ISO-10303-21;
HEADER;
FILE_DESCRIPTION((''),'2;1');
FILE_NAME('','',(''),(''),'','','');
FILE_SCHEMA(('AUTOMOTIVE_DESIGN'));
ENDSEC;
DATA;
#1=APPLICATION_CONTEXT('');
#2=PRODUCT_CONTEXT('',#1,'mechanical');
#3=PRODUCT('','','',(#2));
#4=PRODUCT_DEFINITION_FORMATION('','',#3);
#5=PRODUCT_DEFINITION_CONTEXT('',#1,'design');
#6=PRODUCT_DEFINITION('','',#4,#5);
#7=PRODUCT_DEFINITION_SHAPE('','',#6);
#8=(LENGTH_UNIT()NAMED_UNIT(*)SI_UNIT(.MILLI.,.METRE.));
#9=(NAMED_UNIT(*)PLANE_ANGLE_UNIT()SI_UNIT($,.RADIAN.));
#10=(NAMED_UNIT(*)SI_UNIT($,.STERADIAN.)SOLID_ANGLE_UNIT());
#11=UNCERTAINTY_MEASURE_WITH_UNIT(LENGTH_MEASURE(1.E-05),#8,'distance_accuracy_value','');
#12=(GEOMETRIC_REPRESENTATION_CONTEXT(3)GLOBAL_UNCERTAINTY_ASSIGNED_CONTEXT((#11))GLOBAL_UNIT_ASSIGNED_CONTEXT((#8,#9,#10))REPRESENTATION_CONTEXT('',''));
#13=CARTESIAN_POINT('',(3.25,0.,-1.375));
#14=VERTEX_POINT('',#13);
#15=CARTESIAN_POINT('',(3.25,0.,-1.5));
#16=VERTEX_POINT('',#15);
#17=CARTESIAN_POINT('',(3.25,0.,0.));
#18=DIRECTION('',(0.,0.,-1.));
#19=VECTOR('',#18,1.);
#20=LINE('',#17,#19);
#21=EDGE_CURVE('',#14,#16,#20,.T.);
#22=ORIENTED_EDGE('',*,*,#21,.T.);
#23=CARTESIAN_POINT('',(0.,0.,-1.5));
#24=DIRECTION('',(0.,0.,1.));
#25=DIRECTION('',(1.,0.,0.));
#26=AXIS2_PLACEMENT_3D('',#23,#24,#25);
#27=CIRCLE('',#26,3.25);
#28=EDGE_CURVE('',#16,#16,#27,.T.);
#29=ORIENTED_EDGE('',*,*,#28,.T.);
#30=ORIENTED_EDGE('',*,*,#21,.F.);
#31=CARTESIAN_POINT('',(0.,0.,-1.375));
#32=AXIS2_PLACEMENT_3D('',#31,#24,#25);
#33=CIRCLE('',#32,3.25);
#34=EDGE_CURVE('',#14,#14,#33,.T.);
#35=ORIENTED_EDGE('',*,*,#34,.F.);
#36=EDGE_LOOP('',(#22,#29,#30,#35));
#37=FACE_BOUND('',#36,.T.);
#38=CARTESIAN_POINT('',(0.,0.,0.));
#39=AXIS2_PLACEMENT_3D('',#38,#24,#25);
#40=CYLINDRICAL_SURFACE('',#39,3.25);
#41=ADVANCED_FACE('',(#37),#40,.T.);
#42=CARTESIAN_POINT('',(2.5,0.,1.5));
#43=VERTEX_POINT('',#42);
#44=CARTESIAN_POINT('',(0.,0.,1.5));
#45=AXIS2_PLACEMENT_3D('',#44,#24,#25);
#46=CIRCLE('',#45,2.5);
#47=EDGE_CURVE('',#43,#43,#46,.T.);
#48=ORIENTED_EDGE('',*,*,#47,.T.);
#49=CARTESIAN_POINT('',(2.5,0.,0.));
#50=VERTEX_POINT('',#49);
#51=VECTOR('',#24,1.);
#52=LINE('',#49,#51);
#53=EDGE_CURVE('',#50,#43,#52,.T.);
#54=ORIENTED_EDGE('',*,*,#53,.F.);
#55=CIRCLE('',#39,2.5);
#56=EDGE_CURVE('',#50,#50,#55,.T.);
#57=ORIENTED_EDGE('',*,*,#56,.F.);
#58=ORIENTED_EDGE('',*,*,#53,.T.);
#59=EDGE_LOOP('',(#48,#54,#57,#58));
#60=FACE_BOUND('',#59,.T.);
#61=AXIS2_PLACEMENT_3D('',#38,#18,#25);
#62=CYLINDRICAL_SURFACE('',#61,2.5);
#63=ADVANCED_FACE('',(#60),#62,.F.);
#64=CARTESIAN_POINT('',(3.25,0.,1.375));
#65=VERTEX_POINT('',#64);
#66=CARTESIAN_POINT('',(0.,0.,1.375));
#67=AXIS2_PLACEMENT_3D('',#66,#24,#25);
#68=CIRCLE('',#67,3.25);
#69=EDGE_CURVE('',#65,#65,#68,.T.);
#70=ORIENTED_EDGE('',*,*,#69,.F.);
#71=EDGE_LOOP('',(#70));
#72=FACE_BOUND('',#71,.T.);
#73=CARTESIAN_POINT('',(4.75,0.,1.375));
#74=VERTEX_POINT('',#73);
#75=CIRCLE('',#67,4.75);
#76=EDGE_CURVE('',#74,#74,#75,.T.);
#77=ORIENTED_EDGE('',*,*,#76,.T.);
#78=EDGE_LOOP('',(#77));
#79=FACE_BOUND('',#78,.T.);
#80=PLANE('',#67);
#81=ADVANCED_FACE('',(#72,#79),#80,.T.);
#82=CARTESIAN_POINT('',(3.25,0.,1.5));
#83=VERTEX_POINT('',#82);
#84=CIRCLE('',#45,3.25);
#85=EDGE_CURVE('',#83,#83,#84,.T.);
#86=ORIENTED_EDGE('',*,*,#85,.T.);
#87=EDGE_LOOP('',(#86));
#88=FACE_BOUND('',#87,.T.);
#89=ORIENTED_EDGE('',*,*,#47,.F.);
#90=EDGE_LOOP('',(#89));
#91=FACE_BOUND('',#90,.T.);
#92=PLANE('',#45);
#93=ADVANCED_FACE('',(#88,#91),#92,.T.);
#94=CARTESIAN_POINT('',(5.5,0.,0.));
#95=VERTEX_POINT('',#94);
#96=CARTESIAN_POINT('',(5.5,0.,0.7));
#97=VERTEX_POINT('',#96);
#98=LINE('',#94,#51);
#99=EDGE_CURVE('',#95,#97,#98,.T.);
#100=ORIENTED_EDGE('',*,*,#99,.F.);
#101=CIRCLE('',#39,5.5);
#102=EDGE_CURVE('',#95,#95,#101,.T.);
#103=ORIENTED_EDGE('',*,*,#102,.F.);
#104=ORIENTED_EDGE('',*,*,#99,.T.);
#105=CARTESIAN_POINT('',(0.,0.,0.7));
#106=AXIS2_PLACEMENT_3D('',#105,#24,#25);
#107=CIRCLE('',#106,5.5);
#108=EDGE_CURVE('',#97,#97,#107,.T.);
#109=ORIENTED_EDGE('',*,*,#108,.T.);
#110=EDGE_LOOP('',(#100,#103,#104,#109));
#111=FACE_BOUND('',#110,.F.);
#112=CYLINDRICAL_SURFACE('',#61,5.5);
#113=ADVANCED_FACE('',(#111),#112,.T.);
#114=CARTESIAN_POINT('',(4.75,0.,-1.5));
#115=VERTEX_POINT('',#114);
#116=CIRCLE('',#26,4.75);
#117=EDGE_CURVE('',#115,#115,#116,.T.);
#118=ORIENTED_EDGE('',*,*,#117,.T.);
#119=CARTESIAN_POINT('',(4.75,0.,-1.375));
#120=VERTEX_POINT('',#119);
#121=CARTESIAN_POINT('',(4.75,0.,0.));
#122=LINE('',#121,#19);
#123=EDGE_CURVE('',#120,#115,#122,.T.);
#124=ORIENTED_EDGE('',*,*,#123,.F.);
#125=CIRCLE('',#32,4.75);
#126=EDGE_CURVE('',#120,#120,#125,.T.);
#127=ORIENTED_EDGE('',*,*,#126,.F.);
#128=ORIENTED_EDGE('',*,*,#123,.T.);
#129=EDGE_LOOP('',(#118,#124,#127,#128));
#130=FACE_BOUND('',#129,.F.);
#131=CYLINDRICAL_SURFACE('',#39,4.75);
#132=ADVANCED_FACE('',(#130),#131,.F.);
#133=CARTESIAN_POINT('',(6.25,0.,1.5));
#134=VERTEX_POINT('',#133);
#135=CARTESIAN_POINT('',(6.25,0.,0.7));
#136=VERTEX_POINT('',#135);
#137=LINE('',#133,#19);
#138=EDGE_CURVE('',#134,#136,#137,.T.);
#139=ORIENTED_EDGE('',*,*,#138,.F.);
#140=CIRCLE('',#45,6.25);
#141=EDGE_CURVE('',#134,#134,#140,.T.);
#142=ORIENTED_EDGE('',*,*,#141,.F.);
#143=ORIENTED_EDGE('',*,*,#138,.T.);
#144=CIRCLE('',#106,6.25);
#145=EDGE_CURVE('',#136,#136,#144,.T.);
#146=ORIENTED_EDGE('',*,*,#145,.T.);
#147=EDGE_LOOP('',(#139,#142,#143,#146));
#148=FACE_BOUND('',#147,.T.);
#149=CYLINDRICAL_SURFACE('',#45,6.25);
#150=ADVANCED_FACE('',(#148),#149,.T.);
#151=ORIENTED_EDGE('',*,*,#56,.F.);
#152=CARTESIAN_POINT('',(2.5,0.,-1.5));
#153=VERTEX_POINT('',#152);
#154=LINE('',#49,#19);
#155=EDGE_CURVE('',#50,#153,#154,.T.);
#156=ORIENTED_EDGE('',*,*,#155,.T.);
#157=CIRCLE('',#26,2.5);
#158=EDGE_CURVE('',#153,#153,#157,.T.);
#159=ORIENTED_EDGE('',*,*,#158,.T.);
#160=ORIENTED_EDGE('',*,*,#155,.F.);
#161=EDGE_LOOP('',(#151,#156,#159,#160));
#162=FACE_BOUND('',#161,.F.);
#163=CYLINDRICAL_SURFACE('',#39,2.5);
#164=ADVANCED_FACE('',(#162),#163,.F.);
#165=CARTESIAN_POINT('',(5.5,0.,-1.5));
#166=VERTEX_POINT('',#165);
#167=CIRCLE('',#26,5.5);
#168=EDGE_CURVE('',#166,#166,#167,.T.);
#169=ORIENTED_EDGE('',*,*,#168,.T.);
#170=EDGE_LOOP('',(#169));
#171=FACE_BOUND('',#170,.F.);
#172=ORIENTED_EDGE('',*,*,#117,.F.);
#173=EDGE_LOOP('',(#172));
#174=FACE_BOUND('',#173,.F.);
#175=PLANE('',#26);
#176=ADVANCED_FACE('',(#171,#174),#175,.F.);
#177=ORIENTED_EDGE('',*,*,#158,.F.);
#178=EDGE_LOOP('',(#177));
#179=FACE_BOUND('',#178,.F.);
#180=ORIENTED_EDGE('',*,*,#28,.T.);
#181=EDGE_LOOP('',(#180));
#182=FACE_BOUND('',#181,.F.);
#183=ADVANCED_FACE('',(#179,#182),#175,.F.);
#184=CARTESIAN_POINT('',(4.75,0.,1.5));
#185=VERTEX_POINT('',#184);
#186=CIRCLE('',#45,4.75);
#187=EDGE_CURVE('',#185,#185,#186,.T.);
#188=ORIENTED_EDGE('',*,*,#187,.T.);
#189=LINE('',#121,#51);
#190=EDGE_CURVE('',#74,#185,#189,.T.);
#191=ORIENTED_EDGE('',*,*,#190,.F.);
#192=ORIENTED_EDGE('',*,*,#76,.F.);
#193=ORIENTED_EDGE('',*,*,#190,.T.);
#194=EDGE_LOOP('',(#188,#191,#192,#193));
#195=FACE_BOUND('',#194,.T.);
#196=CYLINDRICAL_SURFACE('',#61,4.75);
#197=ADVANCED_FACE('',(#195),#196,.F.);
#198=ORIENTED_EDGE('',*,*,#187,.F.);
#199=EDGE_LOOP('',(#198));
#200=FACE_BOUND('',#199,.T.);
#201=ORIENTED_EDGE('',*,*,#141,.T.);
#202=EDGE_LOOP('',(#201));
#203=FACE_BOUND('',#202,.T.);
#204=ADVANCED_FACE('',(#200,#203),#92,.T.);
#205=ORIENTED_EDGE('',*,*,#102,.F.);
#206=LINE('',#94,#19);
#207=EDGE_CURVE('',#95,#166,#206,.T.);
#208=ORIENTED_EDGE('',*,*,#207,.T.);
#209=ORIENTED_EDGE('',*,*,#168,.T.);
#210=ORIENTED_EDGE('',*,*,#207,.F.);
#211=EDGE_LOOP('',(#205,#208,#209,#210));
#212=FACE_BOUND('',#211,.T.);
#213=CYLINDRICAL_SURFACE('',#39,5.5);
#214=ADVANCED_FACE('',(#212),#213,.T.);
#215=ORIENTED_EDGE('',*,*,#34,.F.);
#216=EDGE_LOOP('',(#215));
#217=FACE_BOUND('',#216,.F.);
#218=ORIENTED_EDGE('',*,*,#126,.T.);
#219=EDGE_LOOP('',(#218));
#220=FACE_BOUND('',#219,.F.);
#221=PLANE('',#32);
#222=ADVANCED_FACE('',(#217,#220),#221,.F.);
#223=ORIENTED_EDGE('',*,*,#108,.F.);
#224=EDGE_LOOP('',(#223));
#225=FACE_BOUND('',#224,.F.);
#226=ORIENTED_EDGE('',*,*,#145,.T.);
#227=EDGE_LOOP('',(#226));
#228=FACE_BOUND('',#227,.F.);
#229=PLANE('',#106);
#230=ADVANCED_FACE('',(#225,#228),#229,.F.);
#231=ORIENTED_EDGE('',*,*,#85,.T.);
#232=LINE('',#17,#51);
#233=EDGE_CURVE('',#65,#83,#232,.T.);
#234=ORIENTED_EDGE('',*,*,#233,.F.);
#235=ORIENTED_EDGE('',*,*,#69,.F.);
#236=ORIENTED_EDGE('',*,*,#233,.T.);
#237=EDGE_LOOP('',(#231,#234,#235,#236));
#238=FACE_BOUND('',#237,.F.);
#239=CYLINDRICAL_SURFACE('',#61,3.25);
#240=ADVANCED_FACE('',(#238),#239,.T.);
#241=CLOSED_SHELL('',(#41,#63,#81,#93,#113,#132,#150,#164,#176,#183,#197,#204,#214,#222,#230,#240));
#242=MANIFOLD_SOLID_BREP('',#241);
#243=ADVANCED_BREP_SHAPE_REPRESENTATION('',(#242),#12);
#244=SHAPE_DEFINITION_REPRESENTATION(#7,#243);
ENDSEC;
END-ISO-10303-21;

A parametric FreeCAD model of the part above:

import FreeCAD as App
import Part
import Sketcher
Q = App.Units.Quantity

doc = App.newDocument("Part")
body = doc.addObject("PartDesign::Body", "Body")
body.AllowCompound = True

sketch1 = body.newObject("Sketcher::SketchObject", "Sketch")
sketch1.AttachmentSupport = (doc.getObject("XY_Plane"), [""])
sketch1.MapMode = "FlatFace"
sketch1.addGeometry([
    Part.Circle(App.Vector(0, 0, 0), App.Vector(0, 0, 1), 5.5),
    Part.Circle(App.Vector(0, 0, 0), App.Vector(0, 0, 1), 4.75),
    Part.Circle(App.Vector(0, 0, 0), App.Vector(0, 0, 1), 3.25),
    Part.Circle(App.Vector(0, 0, 0), App.Vector(0, 0, 1), 2.5),
], False)
sketch1.addConstraint([
    Sketcher.Constraint("Coincident", 0, 3, -1, 1),
    Sketcher.Constraint("Coincident", 1, 3, -1, 1),
    Sketcher.Constraint("Coincident", 2, 3, -1, 1),
    Sketcher.Constraint("Coincident", 3, 3, -1, 1),
    Sketcher.Constraint("Diameter", 0, Q("11 mm")),
    Sketcher.Constraint("Diameter", 3, Q("5 mm")),
    Sketcher.Constraint("Diameter", 1, Q("9.5 mm")),
    Sketcher.Constraint("Diameter", 2, Q("6.5 mm")),
])
pad1 = body.newObject("PartDesign::Pad", "Pad")
pad1.Profile = sketch1
pad1.Length = 3
pad1.Midplane = True

sketch2 = body.newObject("Sketcher::SketchObject", "Sketch001")
sketch2.AttachmentSupport = (doc.getObject("XY_Plane"), [""])
sketch2.MapMode = "FlatFace"
sketch2.addGeometry([
    Part.Circle(App.Vector(0, 0, 0), App.Vector(0, 0, 1), 4.75),
    Part.Circle(App.Vector(0, 0, 0), App.Vector(0, 0, 1), 3.25),
], False)
sketch2.addConstraint([
    Sketcher.Constraint("Coincident", 0, 3, -1, 1),
    Sketcher.Constraint("Coincident", 1, 3, -1, 1),
    Sketcher.Constraint("Diameter", 0, Q("9.5 mm")),
    Sketcher.Constraint("Diameter", 1, Q("6.5 mm")),
])
pad2 = body.newObject("PartDesign::Pad", "Pad001")
pad2.Profile = sketch2
pad2.Length = 2.75
pad2.Midplane = True

sketch3 = body.newObject("Sketcher::SketchObject", "Sketch002")
sketch3.AttachmentSupport = (doc.getObject("XY_Plane"), [""])
sketch3.MapMode = "FlatFace"
sketch3.AttachmentOffset = App.Placement(App.Vector(0, 0, 1.5), App.Rotation())
sketch3.addGeometry([
    Part.Circle(App.Vector(0, 0, 0), App.Vector(0, 0, 1), 6.25),
    Part.Circle(App.Vector(0, 0, 0), App.Vector(0, 0, 1), 5.5),
], False)
sketch3.addConstraint([
    Sketcher.Constraint("Coincident", 0, 3, -1, 1),
    Sketcher.Constraint("Coincident", 1, 3, -1, 1),
    Sketcher.Constraint("Diameter", 0, Q("12.5 mm")),
    Sketcher.Constraint("Diameter", 1, Q("11 mm")),
])
pad3 = body.newObject("PartDesign::Pad", "Pad002")
pad3.Profile = sketch3
pad3.Length = 0.8
pad3.Reversed = True

doc.recompute()
